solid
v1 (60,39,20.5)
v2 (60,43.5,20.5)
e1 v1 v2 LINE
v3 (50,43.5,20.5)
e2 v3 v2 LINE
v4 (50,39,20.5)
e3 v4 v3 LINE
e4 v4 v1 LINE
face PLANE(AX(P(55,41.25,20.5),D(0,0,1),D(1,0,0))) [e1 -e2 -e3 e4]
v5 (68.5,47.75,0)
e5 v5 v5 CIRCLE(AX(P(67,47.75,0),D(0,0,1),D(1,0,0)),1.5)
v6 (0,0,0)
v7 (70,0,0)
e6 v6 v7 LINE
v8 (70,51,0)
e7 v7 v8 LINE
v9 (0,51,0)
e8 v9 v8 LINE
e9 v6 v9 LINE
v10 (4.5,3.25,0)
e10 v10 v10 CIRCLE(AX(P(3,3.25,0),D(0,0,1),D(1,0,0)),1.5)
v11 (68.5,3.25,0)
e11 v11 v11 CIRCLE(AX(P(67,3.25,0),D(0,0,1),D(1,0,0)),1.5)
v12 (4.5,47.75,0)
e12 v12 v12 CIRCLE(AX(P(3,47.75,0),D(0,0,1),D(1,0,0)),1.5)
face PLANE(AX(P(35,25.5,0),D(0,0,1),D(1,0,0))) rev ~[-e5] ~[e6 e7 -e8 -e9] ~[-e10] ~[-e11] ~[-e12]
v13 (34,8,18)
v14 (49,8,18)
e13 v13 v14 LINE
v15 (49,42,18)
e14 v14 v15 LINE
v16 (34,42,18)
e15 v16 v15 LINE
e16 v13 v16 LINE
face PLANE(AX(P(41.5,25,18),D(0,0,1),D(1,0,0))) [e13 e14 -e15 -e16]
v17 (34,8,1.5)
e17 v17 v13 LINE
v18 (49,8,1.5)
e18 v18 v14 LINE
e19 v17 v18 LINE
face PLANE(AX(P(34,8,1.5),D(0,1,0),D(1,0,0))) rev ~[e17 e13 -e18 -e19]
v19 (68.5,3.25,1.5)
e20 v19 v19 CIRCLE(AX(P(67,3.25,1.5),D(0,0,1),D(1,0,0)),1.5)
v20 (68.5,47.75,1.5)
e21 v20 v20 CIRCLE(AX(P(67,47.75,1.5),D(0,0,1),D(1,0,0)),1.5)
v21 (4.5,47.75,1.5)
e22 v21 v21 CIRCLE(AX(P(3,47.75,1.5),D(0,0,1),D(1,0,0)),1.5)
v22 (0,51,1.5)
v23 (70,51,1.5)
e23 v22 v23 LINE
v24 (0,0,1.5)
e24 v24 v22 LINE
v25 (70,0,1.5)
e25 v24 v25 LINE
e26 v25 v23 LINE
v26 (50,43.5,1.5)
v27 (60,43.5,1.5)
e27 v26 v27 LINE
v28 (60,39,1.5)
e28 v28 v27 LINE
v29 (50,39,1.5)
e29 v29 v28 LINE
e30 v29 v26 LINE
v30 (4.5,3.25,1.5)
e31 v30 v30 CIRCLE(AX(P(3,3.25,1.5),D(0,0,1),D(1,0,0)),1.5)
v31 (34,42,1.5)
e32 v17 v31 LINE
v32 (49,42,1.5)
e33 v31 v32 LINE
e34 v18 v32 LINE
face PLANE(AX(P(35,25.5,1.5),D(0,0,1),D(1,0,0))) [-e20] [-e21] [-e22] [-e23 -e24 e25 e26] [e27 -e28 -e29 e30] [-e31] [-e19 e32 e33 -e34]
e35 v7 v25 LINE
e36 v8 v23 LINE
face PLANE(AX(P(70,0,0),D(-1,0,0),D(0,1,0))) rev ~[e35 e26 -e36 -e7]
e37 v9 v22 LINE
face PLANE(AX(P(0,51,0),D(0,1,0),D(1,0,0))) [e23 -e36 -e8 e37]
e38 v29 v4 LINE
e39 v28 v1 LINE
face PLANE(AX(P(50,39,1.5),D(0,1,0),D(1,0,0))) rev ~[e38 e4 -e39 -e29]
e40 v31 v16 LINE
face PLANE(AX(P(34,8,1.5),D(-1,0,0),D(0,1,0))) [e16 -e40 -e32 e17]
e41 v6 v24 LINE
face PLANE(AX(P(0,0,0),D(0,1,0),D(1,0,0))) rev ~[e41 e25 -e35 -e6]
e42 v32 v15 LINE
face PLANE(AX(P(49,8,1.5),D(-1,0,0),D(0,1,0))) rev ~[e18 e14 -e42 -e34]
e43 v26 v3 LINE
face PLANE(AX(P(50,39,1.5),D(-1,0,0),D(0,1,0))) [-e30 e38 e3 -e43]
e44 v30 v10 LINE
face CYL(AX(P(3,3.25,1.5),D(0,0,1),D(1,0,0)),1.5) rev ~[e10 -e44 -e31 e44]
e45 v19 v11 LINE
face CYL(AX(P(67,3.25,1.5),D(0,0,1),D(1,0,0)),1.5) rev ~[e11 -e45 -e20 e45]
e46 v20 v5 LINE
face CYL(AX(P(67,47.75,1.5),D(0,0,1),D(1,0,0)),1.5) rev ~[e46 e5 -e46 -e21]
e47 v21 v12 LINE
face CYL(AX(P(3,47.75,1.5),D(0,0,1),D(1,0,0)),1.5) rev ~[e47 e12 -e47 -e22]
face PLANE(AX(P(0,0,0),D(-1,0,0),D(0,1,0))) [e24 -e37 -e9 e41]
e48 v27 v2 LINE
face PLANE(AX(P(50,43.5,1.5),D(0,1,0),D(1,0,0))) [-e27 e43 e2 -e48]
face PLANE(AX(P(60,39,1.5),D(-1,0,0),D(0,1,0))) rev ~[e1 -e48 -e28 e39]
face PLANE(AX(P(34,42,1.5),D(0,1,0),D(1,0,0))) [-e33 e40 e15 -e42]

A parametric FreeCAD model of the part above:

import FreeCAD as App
import Part
import Sketcher

V = App.Vector
Q = App.Units.Quantity

doc = App.newDocument("Part")
body = doc.addObject("PartDesign::Body", "Body")

# Sketch on XY plane
sketch1 = doc.addObject("Sketcher::SketchObject", "Sketch")
body.addObject(sketch1)
sketch1.AttachmentSupport = (doc.XY_Plane, [""])
sketch1.MapMode = "FlatFace"
sketch1.addGeometry([
    Part.LineSegment(V(0, 51, 0), V(0, 0, 0)),
    Part.LineSegment(V(0, 0, 0), V(70, 0, 0)),
    Part.LineSegment(V(70, 0, 0), V(70, 51, 0)),
    Part.LineSegment(V(70, 51, 0), V(0, 51, 0)),
], False)
sketch1.addConstraint([
    Sketcher.Constraint("Coincident", 0, 2, 1, 1),
    Sketcher.Constraint("Coincident", 1, 2, 2, 1),
    Sketcher.Constraint("Coincident", 2, 2, 3, 1),
    Sketcher.Constraint("Coincident", 3, 2, 0, 1),
    Sketcher.Constraint("Vertical", 0),
    Sketcher.Constraint("Horizontal", 1),
    Sketcher.Constraint("Vertical", 2),
    Sketcher.Constraint("Horizontal", 3),
    Sketcher.Constraint("Coincident", 0, 2, -1, 1),
    Sketcher.Constraint("DistanceX", 1, 1, 1, 2, Q("70 mm")),
    Sketcher.Constraint("DistanceY", 0, 2, 0, 1, Q("51 mm")),
])
pad1 = doc.addObject("PartDesign::Pad", "Pad")
body.addObject(pad1)
pad1.Profile = sketch1
pad1.Length = 1.5

# Sketch on XY plane
sketch2 = doc.addObject("Sketcher::SketchObject", "Sketch001")
body.addObject(sketch2)
sketch2.AttachmentSupport = (doc.XY_Plane, [""])
sketch2.MapMode = "FlatFace"
sketch2.AttachmentOffset = App.Placement(V(0, 0, 1.5), App.Rotation())
sketch2.addGeometry([
    Part.Circle(V(67, 47.8, 0), V(0, 0, 1), 1.5),
    Part.Circle(V(67, 3.2, 0), V(0, 0, 1), 1.5),
    Part.Circle(V(3, 47.8, 0), V(0, 0, 1), 1.5),
    Part.Circle(V(3, 3.2, 0), V(0, 0, 1), 1.5),
], False)
sketch2.addConstraint([
    Sketcher.Constraint("Equal", 0, 1),
    Sketcher.Constraint("Equal", 1, 2),
    Sketcher.Constraint("Equal", 2, 3),
    Sketcher.Constraint("Horizontal", 0, 3, 2, 3),
    Sketcher.Constraint("Horizontal", 1, 3, 3, 3),
    Sketcher.Constraint("Vertical", 0, 3, 1, 3),
    Sketcher.Constraint("Vertical", 2, 3, 3, 3),
    Sketcher.Constraint("Diameter", 0, Q("3 mm")),
    Sketcher.Constraint("DistanceX", -1, 1, 0, 3, Q("67 mm")),
    Sketcher.Constraint("DistanceX", -1, 1, 2, 3, Q("3 mm")),
    Sketcher.Constraint("DistanceY", 1, 3, 0, 3, Q("44.5 mm")),
    Sketcher.Constraint("DistanceY", -1, 1, 0, 3, Q("47.75 mm")),
])
pocket1 = doc.addObject("PartDesign::Pocket", "Pocket")
body.addObject(pocket1)
pocket1.Profile = sketch2
pocket1.Type = "ThroughAll"

# Sketch on XY plane
sketch3 = doc.addObject("Sketcher::SketchObject", "Sketch002")
body.addObject(sketch3)
sketch3.AttachmentSupport = (doc.XY_Plane, [""])
sketch3.MapMode = "FlatFace"
sketch3.AttachmentOffset = App.Placement(V(0, 0, 1.5), App.Rotation())
sketch3.addGeometry([
    Part.LineSegment(V(34, 42, 0), V(34, 8, 0)),
    Part.LineSegment(V(34, 8, 0), V(49, 8, 0)),
    Part.LineSegment(V(49, 8, 0), V(49, 42, 0)),
    Part.LineSegment(V(49, 42, 0), V(34, 42, 0)),
], False)
sketch3.addConstraint([
    Sketcher.Constraint("Coincident", 0, 2, 1, 1),
    Sketcher.Constraint("Coincident", 1, 2, 2, 1),
    Sketcher.Constraint("Coincident", 2, 2, 3, 1),
    Sketcher.Constraint("Coincident", 3, 2, 0, 1),
    Sketcher.Constraint("Vertical", 0),
    Sketcher.Constraint("Horizontal", 1),
    Sketcher.Constraint("Vertical", 2),
    Sketcher.Constraint("Horizontal", 3),
    Sketcher.Constraint("DistanceX", 1, 1, 1, 2, Q("15 mm")),
    Sketcher.Constraint("DistanceY", 0, 2, 0, 1, Q("34 mm")),
    Sketcher.Constraint("DistanceX", -1, 1, 0, 2, Q("34 mm")),
    Sketcher.Constraint("DistanceY", -1, 1, 0, 2, Q("8 mm")),
])
pad2 = doc.addObject("PartDesign::Pad", "Pad001")
body.addObject(pad2)
pad2.Profile = sketch3
pad2.Length = 16.5

# Sketch on XY plane
sketch4 = doc.addObject("Sketcher::SketchObject", "Sketch003")
body.addObject(sketch4)
sketch4.AttachmentSupport = (doc.XY_Plane, [""])
sketch4.MapMode = "FlatFace"
sketch4.AttachmentOffset = App.Placement(V(0, 0, 1.5), App.Rotation())
sketch4.addGeometry([
    Part.LineSegment(V(50, 43.5, 0), V(50, 39, 0)),
    Part.LineSegment(V(50, 39, 0), V(60, 39, 0)),
    Part.LineSegment(V(60, 39, 0), V(60, 43.5, 0)),
    Part.LineSegment(V(60, 43.5, 0), V(50, 43.5, 0)),
], False)
sketch4.addConstraint([
    Sketcher.Constraint("Coincident", 0, 2, 1, 1),
    Sketcher.Constraint("Coincident", 1, 2, 2, 1),
    Sketcher.Constraint("Coincident", 2, 2, 3, 1),
    Sketcher.Constraint("Coincident", 3, 2, 0, 1),
    Sketcher.Constraint("Vertical", 0),
    Sketcher.Constraint("Horizontal", 1),
    Sketcher.Constraint("Vertical", 2),
    Sketcher.Constraint("Horizontal", 3),
    Sketcher.Constraint("DistanceX", 1, 1, 1, 2, Q("10 mm")),
    Sketcher.Constraint("DistanceY", 0, 2, 0, 1, Q("4.5 mm")),
    Sketcher.Constraint("DistanceX", -1, 1, 0, 2, Q("50 mm")),
    Sketcher.Constraint("DistanceY", -1, 1, 0, 2, Q("39 mm")),
])
pad3 = doc.addObject("PartDesign::Pad", "Pad002")
body.addObject(pad3)
pad3.Profile = sketch4
pad3.Length = 19

doc.recompute()
